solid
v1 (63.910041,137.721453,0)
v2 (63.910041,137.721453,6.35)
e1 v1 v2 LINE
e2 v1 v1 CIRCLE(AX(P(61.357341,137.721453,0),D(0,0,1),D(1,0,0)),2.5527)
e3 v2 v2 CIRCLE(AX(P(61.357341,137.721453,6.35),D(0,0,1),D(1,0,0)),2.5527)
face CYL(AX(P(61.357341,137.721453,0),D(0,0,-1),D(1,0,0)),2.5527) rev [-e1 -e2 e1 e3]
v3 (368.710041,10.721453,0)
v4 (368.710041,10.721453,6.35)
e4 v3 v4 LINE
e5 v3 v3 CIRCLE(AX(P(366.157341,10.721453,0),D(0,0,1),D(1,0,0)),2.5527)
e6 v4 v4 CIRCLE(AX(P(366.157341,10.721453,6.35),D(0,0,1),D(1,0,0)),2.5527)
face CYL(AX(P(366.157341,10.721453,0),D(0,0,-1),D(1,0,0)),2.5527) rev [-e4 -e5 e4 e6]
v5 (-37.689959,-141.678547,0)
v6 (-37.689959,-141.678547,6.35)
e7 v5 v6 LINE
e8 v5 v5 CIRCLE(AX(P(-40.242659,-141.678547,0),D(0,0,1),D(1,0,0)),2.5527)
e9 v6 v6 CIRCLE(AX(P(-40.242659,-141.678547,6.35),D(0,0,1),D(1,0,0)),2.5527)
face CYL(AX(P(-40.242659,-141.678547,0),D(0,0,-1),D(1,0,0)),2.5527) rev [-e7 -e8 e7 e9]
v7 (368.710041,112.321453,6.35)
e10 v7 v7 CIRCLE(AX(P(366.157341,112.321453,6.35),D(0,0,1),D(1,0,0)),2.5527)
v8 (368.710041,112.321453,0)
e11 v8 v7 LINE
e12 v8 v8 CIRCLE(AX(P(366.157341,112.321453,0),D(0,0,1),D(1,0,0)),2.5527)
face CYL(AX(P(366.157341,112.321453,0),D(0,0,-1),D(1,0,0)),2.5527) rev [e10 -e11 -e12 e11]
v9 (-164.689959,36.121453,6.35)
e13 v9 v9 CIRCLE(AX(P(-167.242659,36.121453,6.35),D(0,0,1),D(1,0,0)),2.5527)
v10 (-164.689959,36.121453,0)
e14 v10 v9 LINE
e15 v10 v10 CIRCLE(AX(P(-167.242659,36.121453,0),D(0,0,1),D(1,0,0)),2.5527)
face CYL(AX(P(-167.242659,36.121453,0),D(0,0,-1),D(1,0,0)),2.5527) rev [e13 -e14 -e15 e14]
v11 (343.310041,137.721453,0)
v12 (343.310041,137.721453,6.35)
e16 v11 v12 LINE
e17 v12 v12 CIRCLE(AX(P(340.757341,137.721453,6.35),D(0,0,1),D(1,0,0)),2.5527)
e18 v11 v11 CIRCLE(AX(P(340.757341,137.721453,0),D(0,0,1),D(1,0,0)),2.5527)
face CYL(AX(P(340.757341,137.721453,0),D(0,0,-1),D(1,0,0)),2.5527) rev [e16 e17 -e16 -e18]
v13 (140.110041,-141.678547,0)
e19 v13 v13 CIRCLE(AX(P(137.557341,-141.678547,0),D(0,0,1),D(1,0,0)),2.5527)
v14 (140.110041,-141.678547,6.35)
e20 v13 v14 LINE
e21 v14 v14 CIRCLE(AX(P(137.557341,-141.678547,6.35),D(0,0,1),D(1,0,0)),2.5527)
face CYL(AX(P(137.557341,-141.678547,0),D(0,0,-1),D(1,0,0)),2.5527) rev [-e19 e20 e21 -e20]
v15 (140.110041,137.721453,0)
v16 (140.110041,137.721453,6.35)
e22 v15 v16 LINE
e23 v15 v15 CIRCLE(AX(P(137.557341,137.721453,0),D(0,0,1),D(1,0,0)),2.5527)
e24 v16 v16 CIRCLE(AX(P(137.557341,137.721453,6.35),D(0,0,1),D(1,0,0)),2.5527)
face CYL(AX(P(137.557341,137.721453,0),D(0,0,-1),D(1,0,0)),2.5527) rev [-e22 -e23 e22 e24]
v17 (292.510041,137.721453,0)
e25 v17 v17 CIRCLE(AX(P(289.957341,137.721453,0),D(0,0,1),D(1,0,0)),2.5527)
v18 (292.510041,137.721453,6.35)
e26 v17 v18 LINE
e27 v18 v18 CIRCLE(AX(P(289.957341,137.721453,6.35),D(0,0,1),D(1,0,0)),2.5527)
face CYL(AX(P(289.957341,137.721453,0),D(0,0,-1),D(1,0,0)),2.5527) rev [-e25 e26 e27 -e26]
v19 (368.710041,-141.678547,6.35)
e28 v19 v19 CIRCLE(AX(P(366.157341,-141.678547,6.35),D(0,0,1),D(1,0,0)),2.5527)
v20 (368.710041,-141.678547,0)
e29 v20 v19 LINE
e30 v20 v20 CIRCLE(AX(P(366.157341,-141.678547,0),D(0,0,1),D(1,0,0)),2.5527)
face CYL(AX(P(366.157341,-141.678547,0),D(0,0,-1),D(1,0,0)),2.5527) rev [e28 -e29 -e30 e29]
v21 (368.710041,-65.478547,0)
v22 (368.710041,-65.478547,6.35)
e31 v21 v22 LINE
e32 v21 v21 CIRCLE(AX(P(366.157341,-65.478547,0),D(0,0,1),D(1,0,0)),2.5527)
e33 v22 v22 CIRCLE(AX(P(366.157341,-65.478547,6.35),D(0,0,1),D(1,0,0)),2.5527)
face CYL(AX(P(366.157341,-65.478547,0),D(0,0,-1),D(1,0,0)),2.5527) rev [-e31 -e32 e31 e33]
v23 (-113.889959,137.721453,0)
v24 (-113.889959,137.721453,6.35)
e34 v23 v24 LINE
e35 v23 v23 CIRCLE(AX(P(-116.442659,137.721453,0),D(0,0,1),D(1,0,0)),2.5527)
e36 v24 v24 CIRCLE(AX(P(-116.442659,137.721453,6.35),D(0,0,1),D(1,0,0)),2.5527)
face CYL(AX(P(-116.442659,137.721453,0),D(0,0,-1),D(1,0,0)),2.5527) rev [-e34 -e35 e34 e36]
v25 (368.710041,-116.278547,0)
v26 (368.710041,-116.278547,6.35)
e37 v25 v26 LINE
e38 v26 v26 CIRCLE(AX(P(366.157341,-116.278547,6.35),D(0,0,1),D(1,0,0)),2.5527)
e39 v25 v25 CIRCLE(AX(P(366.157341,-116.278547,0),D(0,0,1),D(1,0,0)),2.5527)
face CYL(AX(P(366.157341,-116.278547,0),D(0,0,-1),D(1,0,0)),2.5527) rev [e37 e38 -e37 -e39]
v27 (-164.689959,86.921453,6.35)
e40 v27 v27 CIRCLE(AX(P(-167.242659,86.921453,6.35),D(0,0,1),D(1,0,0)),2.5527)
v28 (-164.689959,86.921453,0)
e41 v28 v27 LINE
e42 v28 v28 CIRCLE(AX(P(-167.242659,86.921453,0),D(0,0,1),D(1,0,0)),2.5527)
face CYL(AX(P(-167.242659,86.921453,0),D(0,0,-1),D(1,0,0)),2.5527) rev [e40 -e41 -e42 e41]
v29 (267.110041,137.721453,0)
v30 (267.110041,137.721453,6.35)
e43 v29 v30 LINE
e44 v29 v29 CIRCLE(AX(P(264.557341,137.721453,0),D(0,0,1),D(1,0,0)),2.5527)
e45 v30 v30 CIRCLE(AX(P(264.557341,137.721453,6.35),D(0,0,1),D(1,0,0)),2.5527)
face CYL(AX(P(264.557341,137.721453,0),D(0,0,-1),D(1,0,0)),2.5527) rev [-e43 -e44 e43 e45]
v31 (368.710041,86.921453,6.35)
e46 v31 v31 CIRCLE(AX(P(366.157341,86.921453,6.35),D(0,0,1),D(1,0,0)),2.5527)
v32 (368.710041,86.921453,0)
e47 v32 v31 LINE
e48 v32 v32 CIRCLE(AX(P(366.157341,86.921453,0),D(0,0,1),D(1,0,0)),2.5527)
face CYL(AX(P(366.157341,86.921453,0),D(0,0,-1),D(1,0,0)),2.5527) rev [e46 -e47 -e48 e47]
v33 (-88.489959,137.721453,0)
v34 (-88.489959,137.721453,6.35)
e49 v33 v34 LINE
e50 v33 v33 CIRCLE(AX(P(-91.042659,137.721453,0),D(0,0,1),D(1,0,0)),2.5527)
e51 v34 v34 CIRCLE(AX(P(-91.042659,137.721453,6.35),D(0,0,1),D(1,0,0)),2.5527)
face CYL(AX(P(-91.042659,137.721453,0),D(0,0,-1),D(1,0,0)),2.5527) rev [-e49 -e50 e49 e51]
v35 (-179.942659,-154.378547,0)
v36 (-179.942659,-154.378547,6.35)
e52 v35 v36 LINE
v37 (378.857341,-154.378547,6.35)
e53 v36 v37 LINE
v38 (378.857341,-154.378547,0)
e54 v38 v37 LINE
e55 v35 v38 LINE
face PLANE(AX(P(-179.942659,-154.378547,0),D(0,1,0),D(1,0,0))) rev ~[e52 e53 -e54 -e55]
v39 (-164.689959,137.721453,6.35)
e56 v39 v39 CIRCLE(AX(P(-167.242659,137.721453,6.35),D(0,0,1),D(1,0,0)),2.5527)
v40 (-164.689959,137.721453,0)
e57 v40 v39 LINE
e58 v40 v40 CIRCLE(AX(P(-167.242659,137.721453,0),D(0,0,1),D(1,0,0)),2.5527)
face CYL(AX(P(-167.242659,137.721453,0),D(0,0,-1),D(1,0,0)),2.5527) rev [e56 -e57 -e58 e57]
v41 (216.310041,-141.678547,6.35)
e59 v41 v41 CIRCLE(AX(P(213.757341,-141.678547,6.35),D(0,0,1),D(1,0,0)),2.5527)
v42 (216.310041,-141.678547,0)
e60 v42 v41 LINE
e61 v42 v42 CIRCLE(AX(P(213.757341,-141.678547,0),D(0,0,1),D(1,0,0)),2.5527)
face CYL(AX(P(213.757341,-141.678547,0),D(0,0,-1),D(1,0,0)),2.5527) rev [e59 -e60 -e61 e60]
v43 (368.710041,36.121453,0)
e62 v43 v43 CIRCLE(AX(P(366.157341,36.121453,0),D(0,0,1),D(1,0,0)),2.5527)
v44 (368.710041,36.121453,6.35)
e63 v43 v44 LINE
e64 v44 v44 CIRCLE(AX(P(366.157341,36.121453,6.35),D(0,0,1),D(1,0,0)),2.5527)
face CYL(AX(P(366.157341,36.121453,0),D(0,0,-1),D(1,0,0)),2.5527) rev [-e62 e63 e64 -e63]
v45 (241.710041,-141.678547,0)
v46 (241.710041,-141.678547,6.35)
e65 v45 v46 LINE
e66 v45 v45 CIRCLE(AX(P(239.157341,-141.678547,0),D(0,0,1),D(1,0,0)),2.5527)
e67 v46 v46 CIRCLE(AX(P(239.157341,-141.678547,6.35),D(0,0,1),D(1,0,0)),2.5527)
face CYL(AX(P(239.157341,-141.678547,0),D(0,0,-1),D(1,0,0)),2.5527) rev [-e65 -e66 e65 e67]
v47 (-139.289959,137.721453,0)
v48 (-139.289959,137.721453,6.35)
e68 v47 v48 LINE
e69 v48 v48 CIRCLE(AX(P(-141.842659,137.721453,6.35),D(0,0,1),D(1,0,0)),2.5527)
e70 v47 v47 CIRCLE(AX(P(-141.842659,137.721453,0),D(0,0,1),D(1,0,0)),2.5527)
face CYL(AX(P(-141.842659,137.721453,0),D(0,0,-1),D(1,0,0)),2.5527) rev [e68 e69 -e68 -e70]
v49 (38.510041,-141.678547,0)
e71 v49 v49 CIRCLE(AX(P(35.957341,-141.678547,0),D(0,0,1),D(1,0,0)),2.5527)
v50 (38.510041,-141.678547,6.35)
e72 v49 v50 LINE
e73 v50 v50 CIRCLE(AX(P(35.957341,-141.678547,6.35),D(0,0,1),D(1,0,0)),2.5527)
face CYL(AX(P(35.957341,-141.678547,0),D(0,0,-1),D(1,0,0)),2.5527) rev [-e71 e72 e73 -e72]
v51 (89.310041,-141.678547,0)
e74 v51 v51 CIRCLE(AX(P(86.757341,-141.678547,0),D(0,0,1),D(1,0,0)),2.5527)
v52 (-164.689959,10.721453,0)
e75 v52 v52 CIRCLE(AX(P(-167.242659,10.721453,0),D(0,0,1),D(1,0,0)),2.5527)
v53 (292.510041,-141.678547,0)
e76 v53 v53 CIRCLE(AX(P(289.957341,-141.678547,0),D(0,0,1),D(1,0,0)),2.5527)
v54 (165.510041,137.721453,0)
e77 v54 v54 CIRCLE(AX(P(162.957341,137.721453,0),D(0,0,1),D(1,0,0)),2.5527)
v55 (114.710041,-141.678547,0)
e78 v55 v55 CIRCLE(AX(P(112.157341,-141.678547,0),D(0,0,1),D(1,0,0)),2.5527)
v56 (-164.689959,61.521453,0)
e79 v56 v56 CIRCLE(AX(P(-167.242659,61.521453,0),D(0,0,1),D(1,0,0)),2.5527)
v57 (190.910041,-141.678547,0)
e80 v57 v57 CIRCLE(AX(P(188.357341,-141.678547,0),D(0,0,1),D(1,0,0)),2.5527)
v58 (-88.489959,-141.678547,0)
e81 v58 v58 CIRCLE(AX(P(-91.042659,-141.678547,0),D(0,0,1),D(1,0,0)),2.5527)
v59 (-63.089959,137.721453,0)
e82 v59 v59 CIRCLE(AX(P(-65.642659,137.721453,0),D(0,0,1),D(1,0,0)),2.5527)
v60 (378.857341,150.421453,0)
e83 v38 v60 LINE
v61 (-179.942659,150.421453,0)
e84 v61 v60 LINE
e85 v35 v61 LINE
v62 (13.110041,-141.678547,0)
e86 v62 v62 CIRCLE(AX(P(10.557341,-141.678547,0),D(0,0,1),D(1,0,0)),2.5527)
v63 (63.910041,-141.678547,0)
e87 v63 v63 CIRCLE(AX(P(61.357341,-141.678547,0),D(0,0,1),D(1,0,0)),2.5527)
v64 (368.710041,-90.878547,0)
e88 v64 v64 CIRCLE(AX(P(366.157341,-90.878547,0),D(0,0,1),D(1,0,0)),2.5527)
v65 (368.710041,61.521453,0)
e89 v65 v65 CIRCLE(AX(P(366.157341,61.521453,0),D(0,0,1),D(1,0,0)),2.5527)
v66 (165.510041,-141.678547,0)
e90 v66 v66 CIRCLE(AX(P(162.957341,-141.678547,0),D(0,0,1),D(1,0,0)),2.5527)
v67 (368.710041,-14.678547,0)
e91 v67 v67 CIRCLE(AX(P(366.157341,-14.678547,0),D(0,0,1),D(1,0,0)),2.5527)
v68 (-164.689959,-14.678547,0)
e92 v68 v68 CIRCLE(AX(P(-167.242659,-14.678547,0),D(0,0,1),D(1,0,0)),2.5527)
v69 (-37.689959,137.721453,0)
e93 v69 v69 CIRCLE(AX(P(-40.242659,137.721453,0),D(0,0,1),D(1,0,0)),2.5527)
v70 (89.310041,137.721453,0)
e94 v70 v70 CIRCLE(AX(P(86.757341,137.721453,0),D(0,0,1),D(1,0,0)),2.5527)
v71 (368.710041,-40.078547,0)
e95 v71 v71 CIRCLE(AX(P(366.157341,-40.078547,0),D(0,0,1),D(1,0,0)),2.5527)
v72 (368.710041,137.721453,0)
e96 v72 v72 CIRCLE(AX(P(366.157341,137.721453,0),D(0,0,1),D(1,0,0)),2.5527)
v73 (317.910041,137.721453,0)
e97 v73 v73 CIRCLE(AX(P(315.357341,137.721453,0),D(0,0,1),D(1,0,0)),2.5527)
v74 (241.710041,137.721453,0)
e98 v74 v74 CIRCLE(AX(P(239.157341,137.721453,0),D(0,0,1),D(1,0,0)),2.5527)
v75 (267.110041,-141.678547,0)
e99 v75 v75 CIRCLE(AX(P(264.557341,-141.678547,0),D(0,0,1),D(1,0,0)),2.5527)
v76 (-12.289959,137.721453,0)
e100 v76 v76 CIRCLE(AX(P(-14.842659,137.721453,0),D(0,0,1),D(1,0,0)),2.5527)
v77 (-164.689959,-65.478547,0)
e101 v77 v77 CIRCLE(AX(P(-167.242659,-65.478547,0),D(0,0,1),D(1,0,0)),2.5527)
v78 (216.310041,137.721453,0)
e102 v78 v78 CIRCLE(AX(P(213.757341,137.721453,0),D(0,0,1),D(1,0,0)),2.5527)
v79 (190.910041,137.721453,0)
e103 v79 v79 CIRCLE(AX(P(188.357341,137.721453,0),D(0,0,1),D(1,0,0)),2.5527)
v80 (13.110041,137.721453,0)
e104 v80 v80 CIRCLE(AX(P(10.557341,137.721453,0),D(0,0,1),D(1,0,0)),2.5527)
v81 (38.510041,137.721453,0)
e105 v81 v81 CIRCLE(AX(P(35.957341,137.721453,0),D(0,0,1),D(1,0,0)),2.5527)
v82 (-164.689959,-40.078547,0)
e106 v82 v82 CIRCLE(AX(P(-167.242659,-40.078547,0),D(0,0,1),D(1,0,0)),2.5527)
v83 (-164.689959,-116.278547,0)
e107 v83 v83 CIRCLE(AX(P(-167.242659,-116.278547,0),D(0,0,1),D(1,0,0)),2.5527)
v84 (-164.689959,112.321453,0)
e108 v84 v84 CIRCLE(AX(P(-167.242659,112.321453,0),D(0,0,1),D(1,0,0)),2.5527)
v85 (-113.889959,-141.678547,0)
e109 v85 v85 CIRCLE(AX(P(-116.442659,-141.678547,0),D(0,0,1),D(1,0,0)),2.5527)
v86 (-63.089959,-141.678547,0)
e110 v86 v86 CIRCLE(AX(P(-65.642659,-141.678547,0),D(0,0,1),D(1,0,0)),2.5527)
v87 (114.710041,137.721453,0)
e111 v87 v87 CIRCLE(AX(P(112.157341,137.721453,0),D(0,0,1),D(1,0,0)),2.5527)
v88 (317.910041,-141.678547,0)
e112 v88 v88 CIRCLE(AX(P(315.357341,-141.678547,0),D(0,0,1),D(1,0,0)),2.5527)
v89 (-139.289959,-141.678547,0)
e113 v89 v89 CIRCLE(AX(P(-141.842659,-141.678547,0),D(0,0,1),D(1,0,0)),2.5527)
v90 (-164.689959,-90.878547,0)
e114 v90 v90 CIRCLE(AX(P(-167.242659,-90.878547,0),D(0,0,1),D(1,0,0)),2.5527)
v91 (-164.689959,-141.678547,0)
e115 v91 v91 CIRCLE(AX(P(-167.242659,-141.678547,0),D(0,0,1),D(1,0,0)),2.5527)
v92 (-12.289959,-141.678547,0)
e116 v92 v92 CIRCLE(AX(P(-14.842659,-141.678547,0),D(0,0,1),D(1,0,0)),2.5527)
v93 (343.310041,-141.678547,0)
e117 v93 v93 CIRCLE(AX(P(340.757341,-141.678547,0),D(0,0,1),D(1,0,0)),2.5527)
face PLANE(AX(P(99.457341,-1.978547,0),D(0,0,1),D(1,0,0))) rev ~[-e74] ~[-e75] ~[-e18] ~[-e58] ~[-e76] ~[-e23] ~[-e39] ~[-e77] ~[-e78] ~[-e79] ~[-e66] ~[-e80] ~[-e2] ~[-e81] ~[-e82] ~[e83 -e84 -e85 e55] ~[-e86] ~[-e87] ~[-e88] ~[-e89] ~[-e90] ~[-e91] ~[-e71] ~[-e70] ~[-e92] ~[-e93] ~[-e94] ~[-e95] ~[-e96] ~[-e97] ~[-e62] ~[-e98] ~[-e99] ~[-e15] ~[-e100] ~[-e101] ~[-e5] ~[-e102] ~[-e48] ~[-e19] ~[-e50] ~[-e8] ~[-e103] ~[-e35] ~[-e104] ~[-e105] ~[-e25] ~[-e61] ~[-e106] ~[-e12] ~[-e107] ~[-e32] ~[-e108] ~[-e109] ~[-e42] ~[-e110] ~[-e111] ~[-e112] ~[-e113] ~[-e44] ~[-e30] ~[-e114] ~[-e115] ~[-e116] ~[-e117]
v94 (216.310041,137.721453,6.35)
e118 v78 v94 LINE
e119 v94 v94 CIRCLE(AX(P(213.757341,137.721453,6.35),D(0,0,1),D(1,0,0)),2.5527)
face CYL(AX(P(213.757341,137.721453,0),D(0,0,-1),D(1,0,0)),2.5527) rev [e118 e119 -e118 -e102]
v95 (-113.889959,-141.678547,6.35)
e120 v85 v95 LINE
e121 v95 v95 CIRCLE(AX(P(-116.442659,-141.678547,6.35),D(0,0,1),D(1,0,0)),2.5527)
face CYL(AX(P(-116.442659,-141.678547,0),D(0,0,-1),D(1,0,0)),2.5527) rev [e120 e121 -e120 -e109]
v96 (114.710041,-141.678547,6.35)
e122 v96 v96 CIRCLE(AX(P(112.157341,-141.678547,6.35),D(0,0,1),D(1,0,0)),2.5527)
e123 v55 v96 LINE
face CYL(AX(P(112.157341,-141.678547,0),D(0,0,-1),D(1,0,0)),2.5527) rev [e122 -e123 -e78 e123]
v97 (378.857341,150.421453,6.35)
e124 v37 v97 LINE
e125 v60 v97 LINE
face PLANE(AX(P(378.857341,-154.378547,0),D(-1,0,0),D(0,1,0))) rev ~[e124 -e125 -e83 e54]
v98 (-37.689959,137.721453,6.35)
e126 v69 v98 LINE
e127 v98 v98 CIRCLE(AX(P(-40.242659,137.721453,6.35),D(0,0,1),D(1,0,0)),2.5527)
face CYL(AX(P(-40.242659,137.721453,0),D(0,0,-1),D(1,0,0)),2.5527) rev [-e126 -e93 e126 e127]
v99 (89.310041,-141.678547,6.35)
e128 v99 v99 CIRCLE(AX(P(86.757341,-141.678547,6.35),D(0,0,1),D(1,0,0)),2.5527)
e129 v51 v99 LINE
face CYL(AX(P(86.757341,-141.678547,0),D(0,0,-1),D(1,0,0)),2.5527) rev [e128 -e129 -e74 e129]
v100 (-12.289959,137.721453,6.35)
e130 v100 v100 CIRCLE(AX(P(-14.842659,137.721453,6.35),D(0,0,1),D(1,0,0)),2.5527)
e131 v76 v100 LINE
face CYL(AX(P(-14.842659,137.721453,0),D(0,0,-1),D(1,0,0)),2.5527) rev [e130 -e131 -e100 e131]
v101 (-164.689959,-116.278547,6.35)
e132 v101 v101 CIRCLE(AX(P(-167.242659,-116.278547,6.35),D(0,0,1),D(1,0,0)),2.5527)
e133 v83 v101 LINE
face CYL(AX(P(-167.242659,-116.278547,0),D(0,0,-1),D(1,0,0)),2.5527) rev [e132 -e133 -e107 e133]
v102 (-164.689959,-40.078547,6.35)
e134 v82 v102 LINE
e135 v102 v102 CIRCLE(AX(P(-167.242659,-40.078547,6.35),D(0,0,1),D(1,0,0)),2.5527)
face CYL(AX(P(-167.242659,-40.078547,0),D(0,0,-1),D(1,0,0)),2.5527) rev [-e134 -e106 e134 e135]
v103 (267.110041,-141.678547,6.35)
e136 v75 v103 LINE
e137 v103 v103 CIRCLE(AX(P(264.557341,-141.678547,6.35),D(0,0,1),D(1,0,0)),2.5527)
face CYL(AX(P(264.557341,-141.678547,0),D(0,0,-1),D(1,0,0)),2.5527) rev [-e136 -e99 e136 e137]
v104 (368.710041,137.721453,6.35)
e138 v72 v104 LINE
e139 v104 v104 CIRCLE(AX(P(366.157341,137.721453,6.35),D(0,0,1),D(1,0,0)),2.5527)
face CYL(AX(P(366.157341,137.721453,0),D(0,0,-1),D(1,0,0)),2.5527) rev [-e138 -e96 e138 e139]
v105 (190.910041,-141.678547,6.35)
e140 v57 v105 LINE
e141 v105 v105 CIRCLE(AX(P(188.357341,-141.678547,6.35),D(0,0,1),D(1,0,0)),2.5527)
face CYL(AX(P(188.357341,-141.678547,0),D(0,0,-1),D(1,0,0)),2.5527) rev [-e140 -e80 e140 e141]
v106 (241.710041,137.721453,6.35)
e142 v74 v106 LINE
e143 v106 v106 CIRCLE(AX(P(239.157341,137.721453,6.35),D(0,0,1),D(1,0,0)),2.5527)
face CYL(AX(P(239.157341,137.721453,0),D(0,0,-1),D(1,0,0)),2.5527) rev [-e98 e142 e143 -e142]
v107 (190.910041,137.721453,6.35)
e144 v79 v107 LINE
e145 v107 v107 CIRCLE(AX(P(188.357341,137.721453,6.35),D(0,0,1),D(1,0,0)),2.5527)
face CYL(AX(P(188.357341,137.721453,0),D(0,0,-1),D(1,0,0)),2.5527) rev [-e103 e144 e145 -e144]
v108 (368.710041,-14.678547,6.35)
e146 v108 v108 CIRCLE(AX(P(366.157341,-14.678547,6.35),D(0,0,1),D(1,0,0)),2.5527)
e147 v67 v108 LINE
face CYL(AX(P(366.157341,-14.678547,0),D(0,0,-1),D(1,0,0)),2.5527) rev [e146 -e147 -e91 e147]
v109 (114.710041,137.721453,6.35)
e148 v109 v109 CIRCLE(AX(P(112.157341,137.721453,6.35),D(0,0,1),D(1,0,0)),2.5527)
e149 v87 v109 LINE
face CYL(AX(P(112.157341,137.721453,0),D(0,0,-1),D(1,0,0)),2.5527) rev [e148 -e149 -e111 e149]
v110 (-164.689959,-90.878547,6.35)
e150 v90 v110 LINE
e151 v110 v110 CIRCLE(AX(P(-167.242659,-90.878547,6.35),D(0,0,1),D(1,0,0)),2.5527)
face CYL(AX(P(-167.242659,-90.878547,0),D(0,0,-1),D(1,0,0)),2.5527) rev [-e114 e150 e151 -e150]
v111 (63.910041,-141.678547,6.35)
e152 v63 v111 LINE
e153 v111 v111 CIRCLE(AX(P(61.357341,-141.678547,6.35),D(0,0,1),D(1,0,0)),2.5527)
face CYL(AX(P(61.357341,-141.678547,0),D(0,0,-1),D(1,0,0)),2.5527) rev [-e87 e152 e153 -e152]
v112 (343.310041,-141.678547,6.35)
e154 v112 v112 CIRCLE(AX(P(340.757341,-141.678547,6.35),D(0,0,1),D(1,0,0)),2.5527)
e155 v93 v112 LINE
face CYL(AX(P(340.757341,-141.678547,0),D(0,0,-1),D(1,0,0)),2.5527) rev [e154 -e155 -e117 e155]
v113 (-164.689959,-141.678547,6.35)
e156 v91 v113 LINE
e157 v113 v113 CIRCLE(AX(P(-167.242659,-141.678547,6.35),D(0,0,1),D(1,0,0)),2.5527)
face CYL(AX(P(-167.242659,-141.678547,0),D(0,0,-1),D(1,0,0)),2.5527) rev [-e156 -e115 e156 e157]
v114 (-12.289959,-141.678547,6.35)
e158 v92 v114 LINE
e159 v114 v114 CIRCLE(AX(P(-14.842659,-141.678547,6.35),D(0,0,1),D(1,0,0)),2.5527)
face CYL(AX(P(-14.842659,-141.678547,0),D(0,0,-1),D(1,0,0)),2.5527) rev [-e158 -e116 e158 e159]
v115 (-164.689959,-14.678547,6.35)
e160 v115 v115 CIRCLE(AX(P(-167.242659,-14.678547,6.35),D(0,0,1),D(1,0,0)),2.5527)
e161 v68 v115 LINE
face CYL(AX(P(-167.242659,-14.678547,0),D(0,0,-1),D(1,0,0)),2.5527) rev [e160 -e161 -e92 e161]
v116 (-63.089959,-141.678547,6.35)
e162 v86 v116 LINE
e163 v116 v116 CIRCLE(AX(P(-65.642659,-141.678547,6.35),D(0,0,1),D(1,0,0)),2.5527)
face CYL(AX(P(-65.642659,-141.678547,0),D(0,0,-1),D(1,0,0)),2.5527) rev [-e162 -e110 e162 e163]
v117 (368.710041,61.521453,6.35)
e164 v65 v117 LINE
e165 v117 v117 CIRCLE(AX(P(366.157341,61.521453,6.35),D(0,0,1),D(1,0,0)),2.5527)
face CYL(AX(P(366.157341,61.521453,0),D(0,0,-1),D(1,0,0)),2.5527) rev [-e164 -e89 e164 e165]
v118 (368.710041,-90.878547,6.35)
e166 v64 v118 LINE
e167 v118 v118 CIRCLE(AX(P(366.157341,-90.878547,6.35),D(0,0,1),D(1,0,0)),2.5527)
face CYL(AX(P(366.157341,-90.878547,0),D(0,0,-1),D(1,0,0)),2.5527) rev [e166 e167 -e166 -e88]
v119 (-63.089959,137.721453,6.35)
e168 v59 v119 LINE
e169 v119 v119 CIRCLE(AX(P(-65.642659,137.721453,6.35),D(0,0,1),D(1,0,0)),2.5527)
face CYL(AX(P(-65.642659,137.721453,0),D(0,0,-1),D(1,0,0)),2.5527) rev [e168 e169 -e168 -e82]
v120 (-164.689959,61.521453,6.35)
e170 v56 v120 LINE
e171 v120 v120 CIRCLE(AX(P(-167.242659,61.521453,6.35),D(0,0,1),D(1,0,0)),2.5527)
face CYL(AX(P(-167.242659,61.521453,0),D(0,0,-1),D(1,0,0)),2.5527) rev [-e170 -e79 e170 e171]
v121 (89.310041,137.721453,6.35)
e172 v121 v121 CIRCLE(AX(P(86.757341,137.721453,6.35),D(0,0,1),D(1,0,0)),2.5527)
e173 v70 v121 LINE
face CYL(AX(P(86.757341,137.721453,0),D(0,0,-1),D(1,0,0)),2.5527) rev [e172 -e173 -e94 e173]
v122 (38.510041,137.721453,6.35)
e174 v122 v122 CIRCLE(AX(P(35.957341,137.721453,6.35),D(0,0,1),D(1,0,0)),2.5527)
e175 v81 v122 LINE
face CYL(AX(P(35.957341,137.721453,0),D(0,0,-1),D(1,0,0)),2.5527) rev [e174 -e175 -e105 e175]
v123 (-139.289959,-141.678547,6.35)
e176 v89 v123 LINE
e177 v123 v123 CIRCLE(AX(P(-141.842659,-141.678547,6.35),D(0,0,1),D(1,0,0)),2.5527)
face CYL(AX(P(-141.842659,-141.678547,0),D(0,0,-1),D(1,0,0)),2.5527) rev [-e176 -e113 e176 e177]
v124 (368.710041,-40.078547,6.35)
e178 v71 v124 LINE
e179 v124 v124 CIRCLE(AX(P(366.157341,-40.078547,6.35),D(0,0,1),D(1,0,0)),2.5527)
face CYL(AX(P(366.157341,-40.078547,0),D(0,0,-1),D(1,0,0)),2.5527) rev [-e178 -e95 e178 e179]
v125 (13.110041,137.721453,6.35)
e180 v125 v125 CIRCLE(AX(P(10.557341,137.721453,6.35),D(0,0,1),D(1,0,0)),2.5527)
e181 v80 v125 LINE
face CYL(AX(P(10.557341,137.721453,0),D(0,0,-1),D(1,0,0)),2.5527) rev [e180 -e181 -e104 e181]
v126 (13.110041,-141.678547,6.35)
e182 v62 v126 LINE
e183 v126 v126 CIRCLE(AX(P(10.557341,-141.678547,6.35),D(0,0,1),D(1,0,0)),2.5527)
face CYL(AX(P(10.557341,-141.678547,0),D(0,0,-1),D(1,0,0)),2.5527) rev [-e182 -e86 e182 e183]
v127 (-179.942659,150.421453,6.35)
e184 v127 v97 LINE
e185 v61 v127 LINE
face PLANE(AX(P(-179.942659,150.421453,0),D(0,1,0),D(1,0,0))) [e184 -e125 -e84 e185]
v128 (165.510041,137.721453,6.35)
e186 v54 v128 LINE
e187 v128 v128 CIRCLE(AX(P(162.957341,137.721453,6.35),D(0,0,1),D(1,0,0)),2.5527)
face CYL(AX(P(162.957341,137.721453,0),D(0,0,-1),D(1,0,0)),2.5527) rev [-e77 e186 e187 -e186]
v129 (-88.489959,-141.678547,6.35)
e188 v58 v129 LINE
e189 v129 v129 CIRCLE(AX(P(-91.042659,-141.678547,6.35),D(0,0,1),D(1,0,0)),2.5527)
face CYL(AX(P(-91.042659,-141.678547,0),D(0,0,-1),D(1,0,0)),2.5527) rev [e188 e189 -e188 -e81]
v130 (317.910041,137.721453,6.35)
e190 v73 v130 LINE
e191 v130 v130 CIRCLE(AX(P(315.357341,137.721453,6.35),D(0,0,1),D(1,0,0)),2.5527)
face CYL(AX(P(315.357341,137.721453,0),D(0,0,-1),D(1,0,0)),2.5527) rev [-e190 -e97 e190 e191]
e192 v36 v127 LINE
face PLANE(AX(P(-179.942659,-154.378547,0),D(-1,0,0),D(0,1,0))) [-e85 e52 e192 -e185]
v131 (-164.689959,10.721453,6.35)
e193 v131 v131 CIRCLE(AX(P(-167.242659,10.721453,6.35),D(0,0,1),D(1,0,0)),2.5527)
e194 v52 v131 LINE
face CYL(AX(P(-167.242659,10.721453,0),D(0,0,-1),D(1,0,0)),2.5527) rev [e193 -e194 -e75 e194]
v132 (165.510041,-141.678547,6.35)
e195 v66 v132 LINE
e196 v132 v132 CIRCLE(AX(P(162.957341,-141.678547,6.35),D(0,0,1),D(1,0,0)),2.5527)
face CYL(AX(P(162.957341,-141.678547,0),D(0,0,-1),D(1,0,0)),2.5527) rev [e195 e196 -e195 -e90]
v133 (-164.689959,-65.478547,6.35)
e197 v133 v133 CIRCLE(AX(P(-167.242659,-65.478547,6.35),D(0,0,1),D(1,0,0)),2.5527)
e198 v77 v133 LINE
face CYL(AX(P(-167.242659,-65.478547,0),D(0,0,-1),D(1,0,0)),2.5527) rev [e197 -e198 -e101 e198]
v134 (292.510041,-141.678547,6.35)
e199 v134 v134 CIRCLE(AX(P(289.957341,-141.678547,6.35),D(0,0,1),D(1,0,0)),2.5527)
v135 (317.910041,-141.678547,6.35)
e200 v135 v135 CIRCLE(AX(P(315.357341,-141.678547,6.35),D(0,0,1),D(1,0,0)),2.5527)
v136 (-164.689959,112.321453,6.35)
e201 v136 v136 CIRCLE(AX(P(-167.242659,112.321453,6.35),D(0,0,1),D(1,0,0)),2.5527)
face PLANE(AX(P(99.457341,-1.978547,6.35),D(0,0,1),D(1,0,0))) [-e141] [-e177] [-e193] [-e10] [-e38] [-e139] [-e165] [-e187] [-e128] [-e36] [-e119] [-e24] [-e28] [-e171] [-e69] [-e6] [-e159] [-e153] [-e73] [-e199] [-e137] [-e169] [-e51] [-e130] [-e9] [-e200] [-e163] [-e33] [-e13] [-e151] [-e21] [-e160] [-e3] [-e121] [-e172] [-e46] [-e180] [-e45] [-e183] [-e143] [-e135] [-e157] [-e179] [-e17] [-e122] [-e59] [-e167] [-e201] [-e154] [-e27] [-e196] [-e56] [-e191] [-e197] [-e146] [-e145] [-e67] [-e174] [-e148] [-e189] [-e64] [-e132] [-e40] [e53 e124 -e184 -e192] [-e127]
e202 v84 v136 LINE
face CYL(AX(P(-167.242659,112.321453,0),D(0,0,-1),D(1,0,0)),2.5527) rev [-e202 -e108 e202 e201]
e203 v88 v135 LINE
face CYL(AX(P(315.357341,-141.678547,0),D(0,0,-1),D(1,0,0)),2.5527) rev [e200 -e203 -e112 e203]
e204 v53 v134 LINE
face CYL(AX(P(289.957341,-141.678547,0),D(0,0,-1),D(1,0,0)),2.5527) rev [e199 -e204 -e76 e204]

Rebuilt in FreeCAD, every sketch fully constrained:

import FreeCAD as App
import Part
import Sketcher

V = App.Vector
Q = App.Units.Quantity

doc = App.newDocument("Part")
body = doc.addObject("PartDesign::Body", "Body")

# Sketch on XY plane
sketch1 = body.newObject("Sketcher::SketchObject", "Sketch")
sketch1.AttachmentSupport = (doc.getObject("XY_Plane"), [""])
sketch1.MapMode = "FlatFace"
sketch1.addGeometry([
    Part.LineSegment(V(-179.942659, 150.421453, 0), V(-179.942659, -154.378547, 0)),  # 0
    Part.LineSegment(V(-179.942659, -154.378547, 0), V(378.857341, -154.378547, 0)),  # 1
    Part.LineSegment(V(378.857341, -154.378547, 0), V(378.857341, 150.421453, 0)),  # 2
    Part.LineSegment(V(378.857341, 150.421453, 0), V(-179.942659, 150.421453, 0)),  # 3
    Part.Circle(V(-167.242659, -141.678547, 0), V(0, 0, 1), 2.5527),  # 4
    Part.Circle(V(-141.842659, -141.678547, 0), V(0, 0, 1), 2.5527),  # 5
    Part.Circle(V(-116.442659, -141.678547, 0), V(0, 0, 1), 2.5527),  # 6
    Part.Circle(V(-167.242659, -116.278547, 0), V(0, 0, 1), 2.5527),  # 7
    Part.Circle(V(-91.042659, -141.678547, 0), V(0, 0, 1), 2.5527),  # 8
    Part.Circle(V(-65.642659, -141.678547, 0), V(0, 0, 1), 2.5527),  # 9
    Part.Circle(V(-40.242659, -141.678547, 0), V(0, 0, 1), 2.5527),  # 10
    Part.Circle(V(-167.242659, -90.878547, 0), V(0, 0, 1), 2.5527),  # 11
    Part.Circle(V(-14.842659, -141.678547, 0), V(0, 0, 1), 2.5527),  # 12
    Part.Circle(V(10.557341, -141.678547, 0), V(0, 0, 1), 2.5527),  # 13
    Part.Circle(V(35.957341, -141.678547, 0), V(0, 0, 1), 2.5527),  # 14
    Part.Circle(V(61.357341, -141.678547, 0), V(0, 0, 1), 2.5527),  # 15
    Part.Circle(V(86.757341, -141.678547, 0), V(0, 0, 1), 2.5527),  # 16
    Part.Circle(V(-167.242659, -65.478547, 0), V(0, 0, 1), 2.5527),  # 17
    Part.Circle(V(-167.242659, -40.078547, 0), V(0, 0, 1), 2.5527),  # 18
    Part.Circle(V(-167.242659, -14.678547, 0), V(0, 0, 1), 2.5527),  # 19
    Part.Circle(V(112.157341, -141.678547, 0), V(0, 0, 1), 2.5527),  # 20
    Part.Circle(V(137.557341, -141.678547, 0), V(0, 0, 1), 2.5527),  # 21
    Part.Circle(V(162.957341, -141.678547, 0), V(0, 0, 1), 2.5527),  # 22
    Part.Circle(V(188.357341, -141.678547, 0), V(0, 0, 1), 2.5527),  # 23
    Part.Circle(V(213.757341, -141.678547, 0), V(0, 0, 1), 2.5527),  # 24
    Part.Circle(V(239.157341, -141.678547, 0), V(0, 0, 1), 2.5527),  # 25
    Part.Circle(V(264.557341, -141.678547, 0), V(0, 0, 1), 2.5527),  # 26
    Part.Circle(V(289.957341, -141.678547, 0), V(0, 0, 1), 2.5527),  # 27
    Part.Circle(V(315.357341, -141.678547, 0), V(0, 0, 1), 2.5527),  # 28
    Part.Circle(V(340.757341, -141.678547, 0), V(0, 0, 1), 2.5527),  # 29
    Part.Circle(V(366.157341, -141.678547, 0), V(0, 0, 1), 2.5527),  # 30
    Part.Circle(V(366.157341, -116.278547, 0), V(0, 0, 1), 2.5527),  # 31
    Part.Circle(V(366.157341, -90.878547, 0), V(0, 0, 1), 2.5527),  # 32
    Part.Circle(V(366.157341, -65.478547, 0), V(0, 0, 1), 2.5527),  # 33
    Part.Circle(V(366.157341, -40.078547, 0), V(0, 0, 1), 2.5527),  # 34
    Part.Circle(V(366.157341, -14.678547, 0), V(0, 0, 1), 2.5527),  # 35
    Part.Circle(V(-167.242659, 10.721453, 0), V(0, 0, 1), 2.5527),  # 36
    Part.Circle(V(-167.242659, 36.121453, 0), V(0, 0, 1), 2.5527),  # 37
    Part.Circle(V(-167.242659, 61.521453, 0), V(0, 0, 1), 2.5527),  # 38
    Part.Circle(V(-167.242659, 86.921453, 0), V(0, 0, 1), 2.5527),  # 39
    Part.Circle(V(-167.242659, 112.321453, 0), V(0, 0, 1), 2.5527),  # 40
    Part.Circle(V(-167.242659, 137.721453, 0), V(0, 0, 1), 2.5527),  # 41
    Part.Circle(V(-141.842659, 137.721453, 0), V(0, 0, 1), 2.5527),  # 42
    Part.Circle(V(-116.442659, 137.721453, 0), V(0, 0, 1), 2.5527),  # 43
    Part.Circle(V(-91.042659, 137.721453, 0), V(0, 0, 1), 2.5527),  # 44
    Part.Circle(V(-65.642659, 137.721453, 0), V(0, 0, 1), 2.5527),  # 45
    Part.Circle(V(-40.242659, 137.721453, 0), V(0, 0, 1), 2.5527),  # 46
    Part.Circle(V(-14.842659, 137.721453, 0), V(0, 0, 1), 2.5527),  # 47
    Part.Circle(V(10.557341, 137.721453, 0), V(0, 0, 1), 2.5527),  # 48
    Part.Circle(V(35.957341, 137.721453, 0), V(0, 0, 1), 2.5527),  # 49
    Part.Circle(V(61.357341, 137.721453, 0), V(0, 0, 1), 2.5527),  # 50
    Part.Circle(V(86.757341, 137.721453, 0), V(0, 0, 1), 2.5527),  # 51
    Part.Circle(V(366.157341, 10.721453, 0), V(0, 0, 1), 2.5527),  # 52
    Part.Circle(V(366.157341, 36.121453, 0), V(0, 0, 1), 2.5527),  # 53
    Part.Circle(V(366.157341, 61.521453, 0), V(0, 0, 1), 2.5527),  # 54
    Part.Circle(V(112.157341, 137.721453, 0), V(0, 0, 1), 2.5527),  # 55
    Part.Circle(V(137.557341, 137.721453, 0), V(0, 0, 1), 2.5527),  # 56
    Part.Circle(V(162.957341, 137.721453, 0), V(0, 0, 1), 2.5527),  # 57
    Part.Circle(V(188.357341, 137.721453, 0), V(0, 0, 1), 2.5527),  # 58
    Part.Circle(V(213.757341, 137.721453, 0), V(0, 0, 1), 2.5527),  # 59
    Part.Circle(V(366.157341, 86.921453, 0), V(0, 0, 1), 2.5527),  # 60
    Part.Circle(V(239.157341, 137.721453, 0), V(0, 0, 1), 2.5527),  # 61
    Part.Circle(V(264.557341, 137.721453, 0), V(0, 0, 1), 2.5527),  # 62
    Part.Circle(V(289.957341, 137.721453, 0), V(0, 0, 1), 2.5527),  # 63
    Part.Circle(V(366.157341, 112.321453, 0), V(0, 0, 1), 2.5527),  # 64
    Part.Circle(V(315.357341, 137.721453, 0), V(0, 0, 1), 2.5527),  # 65
    Part.Circle(V(340.757341, 137.721453, 0), V(0, 0, 1), 2.5527),  # 66
    Part.Circle(V(366.157341, 137.721453, 0), V(0, 0, 1), 2.5527),  # 67
], False)
sketch1.addConstraint([
    Sketcher.Constraint("Coincident", 0, 2, 1, 1),
    Sketcher.Constraint("Coincident", 1, 2, 2, 1),
    Sketcher.Constraint("Coincident", 2, 2, 3, 1),
    Sketcher.Constraint("Coincident", 3, 2, 0, 1),
    Sketcher.Constraint("Vertical", 0),
    Sketcher.Constraint("Horizontal", 1),
    Sketcher.Constraint("Vertical", 2),
    Sketcher.Constraint("Horizontal", 3),
    Sketcher.Constraint("Equal", 4, 5),
    Sketcher.Constraint("Equal", 5, 6),
    Sketcher.Constraint("Equal", 6, 7),
    Sketcher.Constraint("Equal", 7, 8),
    Sketcher.Constraint("Equal", 8, 9),
    Sketcher.Constraint("Equal", 9, 10),
    Sketcher.Constraint("Equal", 10, 11),
    Sketcher.Constraint("Equal", 11, 12),
    Sketcher.Constraint("Equal", 12, 13),
    Sketcher.Constraint("Equal", 13, 14),
    Sketcher.Constraint("Equal", 14, 15),
    Sketcher.Constraint("Equal", 15, 16),
    Sketcher.Constraint("Equal", 16, 17),
    Sketcher.Constraint("Equal", 17, 18),
    Sketcher.Constraint("Equal", 18, 19),
    Sketcher.Constraint("Equal", 19, 20),
    Sketcher.Constraint("Equal", 20, 21),
    Sketcher.Constraint("Equal", 21, 22),
    Sketcher.Constraint("Equal", 22, 23),
    Sketcher.Constraint("Equal", 23, 24),
    Sketcher.Constraint("Equal", 24, 25),
    Sketcher.Constraint("Equal", 25, 26),
    Sketcher.Constraint("Equal", 26, 27),
    Sketcher.Constraint("Equal", 27, 28),
    Sketcher.Constraint("Equal", 28, 29),
    Sketcher.Constraint("Equal", 29, 30),
    Sketcher.Constraint("Equal", 30, 31),
    Sketcher.Constraint("Equal", 31, 32),
    Sketcher.Constraint("Equal", 32, 33),
    Sketcher.Constraint("Equal", 33, 34),
    Sketcher.Constraint("Equal", 34, 35),
    Sketcher.Constraint("Equal", 35, 36),
    Sketcher.Constraint("Equal", 36, 37),
    Sketcher.Constraint("Equal", 37, 38),
    Sketcher.Constraint("Equal", 38, 39),
    Sketcher.Constraint("Equal", 39, 40),
    Sketcher.Constraint("Equal", 40, 41),
    Sketcher.Constraint("Equal", 41, 42),
    Sketcher.Constraint("Equal", 42, 43),
    Sketcher.Constraint("Equal", 43, 44),
    Sketcher.Constraint("Equal", 44, 45),
    Sketcher.Constraint("Equal", 45, 46),
    Sketcher.Constraint("Equal", 46, 47),
    Sketcher.Constraint("Equal", 47, 48),
    Sketcher.Constraint("Equal", 48, 49),
    Sketcher.Constraint("Equal", 49, 50),
    Sketcher.Constraint("Equal", 50, 51),
    Sketcher.Constraint("Equal", 51, 52),
    Sketcher.Constraint("Equal", 52, 53),
    Sketcher.Constraint("Equal", 53, 54),
    Sketcher.Constraint("Equal", 54, 55),
    Sketcher.Constraint("Equal", 55, 56),
    Sketcher.Constraint("Equal", 56, 57),
    Sketcher.Constraint("Equal", 57, 58),
    Sketcher.Constraint("Equal", 58, 59),
    Sketcher.Constraint("Equal", 59, 60),
    Sketcher.Constraint("Equal", 60, 61),
    Sketcher.Constraint("Equal", 61, 62),
    Sketcher.Constraint("Equal", 62, 63),
    Sketcher.Constraint("Equal", 63, 64),
    Sketcher.Constraint("Equal", 64, 65),
    Sketcher.Constraint("Equal", 65, 66),
    Sketcher.Constraint("Equal", 66, 67),
    Sketcher.Constraint("Horizontal", 4, 3, 5, 3),
    Sketcher.Constraint("Horizontal", 5, 3, 6, 3),
    Sketcher.Constraint("Horizontal", 6, 3, 8, 3),
    Sketcher.Constraint("Horizontal", 8, 3, 9, 3),
    Sketcher.Constraint("Horizontal", 9, 3, 10, 3),
    Sketcher.Constraint("Horizontal", 10, 3, 12, 3),
    Sketcher.Constraint("Horizontal", 12, 3, 13, 3),
    Sketcher.Constraint("Horizontal", 13, 3, 14, 3),
    Sketcher.Constraint("Horizontal", 14, 3, 15, 3),
    Sketcher.Constraint("Horizontal", 15, 3, 16, 3),
    Sketcher.Constraint("Horizontal", 16, 3, 20, 3),
    Sketcher.Constraint("Horizontal", 20, 3, 21, 3),
    Sketcher.Constraint("Horizontal", 21, 3, 22, 3),
    Sketcher.Constraint("Horizontal", 22, 3, 23, 3),
    Sketcher.Constraint("Horizontal", 23, 3, 24, 3),
    Sketcher.Constraint("Horizontal", 24, 3, 25, 3),
    Sketcher.Constraint("Horizontal", 25, 3, 26, 3),
    Sketcher.Constraint("Horizontal", 26, 3, 27, 3),
    Sketcher.Constraint("Horizontal", 27, 3, 28, 3),
    Sketcher.Constraint("Horizontal", 28, 3, 29, 3),
    Sketcher.Constraint("Horizontal", 29, 3, 30, 3),
    Sketcher.Constraint("Horizontal", 7, 3, 31, 3),
    Sketcher.Constraint("Horizontal", 11, 3, 32, 3),
    Sketcher.Constraint("Horizontal", 17, 3, 33, 3),
    Sketcher.Constraint("Horizontal", 18, 3, 34, 3),
    Sketcher.Constraint("Horizontal", 19, 3, 35, 3),
    Sketcher.Constraint("Horizontal", 41, 3, 42, 3),
    Sketcher.Constraint("Horizontal", 42, 3, 43, 3),
    Sketcher.Constraint("Horizontal", 43, 3, 44, 3),
    Sketcher.Constraint("Horizontal", 44, 3, 45, 3),
    Sketcher.Constraint("Horizontal", 45, 3, 46, 3),
    Sketcher.Constraint("Horizontal", 46, 3, 47, 3),
    Sketcher.Constraint("Horizontal", 47, 3, 48, 3),
    Sketcher.Constraint("Horizontal", 48, 3, 49, 3),
    Sketcher.Constraint("Horizontal", 49, 3, 50, 3),
    Sketcher.Constraint("Horizontal", 50, 3, 51, 3),
    Sketcher.Constraint("Horizontal", 36, 3, 52, 3),
    Sketcher.Constraint("Horizontal", 37, 3, 53, 3),
    Sketcher.Constraint("Horizontal", 38, 3, 54, 3),
    Sketcher.Constraint("Horizontal", 51, 3, 55, 3),
    Sketcher.Constraint("Horizontal", 55, 3, 56, 3),
    Sketcher.Constraint("Horizontal", 56, 3, 57, 3),
    Sketcher.Constraint("Horizontal", 57, 3, 58, 3),
    Sketcher.Constraint("Horizontal", 58, 3, 59, 3),
    Sketcher.Constraint("Horizontal", 39, 3, 60, 3),
    Sketcher.Constraint("Horizontal", 59, 3, 61, 3),
    Sketcher.Constraint("Horizontal", 61, 3, 62, 3),
    Sketcher.Constraint("Horizontal", 62, 3, 63, 3),
    Sketcher.Constraint("Horizontal", 40, 3, 64, 3),
    Sketcher.Constraint("Horizontal", 63, 3, 65, 3),
    Sketcher.Constraint("Horizontal", 65, 3, 66, 3),
    Sketcher.Constraint("Horizontal", 66, 3, 67, 3),
    Sketcher.Constraint("Vertical", 4, 3, 7, 3),
    Sketcher.Constraint("Vertical", 7, 3, 11, 3),
    Sketcher.Constraint("Vertical", 11, 3, 17, 3),
    Sketcher.Constraint("Vertical", 17, 3, 18, 3),
    Sketcher.Constraint("Vertical", 18, 3, 19, 3),
    Sketcher.Constraint("Vertical", 30, 3, 31, 3),
    Sketcher.Constraint("Vertical", 31, 3, 32, 3),
    Sketcher.Constraint("Vertical", 32, 3, 33, 3),
    Sketcher.Constraint("Vertical", 33, 3, 34, 3),
    Sketcher.Constraint("Vertical", 34, 3, 35, 3),
    Sketcher.Constraint("Vertical", 19, 3, 36, 3),
    Sketcher.Constraint("Vertical", 36, 3, 37, 3),
    Sketcher.Constraint("Vertical", 37, 3, 38, 3),
    Sketcher.Constraint("Vertical", 38, 3, 39, 3),
    Sketcher.Constraint("Vertical", 39, 3, 40, 3),
    Sketcher.Constraint("Vertical", 40, 3, 41, 3),
    Sketcher.Constraint("Vertical", 5, 3, 42, 3),
    Sketcher.Constraint("Vertical", 6, 3, 43, 3),
    Sketcher.Constraint("Vertical", 8, 3, 44, 3),
    Sketcher.Constraint("Vertical", 9, 3, 45, 3),
    Sketcher.Constraint("Vertical", 10, 3, 46, 3),
    Sketcher.Constraint("Vertical", 12, 3, 47, 3),
    Sketcher.Constraint("Vertical", 13, 3, 48, 3),
    Sketcher.Constraint("Vertical", 14, 3, 49, 3),
    Sketcher.Constraint("Vertical", 15, 3, 50, 3),
    Sketcher.Constraint("Vertical", 16, 3, 51, 3),
    Sketcher.Constraint("Vertical", 35, 3, 52, 3),
    Sketcher.Constraint("Vertical", 52, 3, 53, 3),
    Sketcher.Constraint("Vertical", 53, 3, 54, 3),
    Sketcher.Constraint("Vertical", 20, 3, 55, 3),
    Sketcher.Constraint("Vertical", 21, 3, 56, 3),
    Sketcher.Constraint("Vertical", 22, 3, 57, 3),
    Sketcher.Constraint("Vertical", 23, 3, 58, 3),
    Sketcher.Constraint("Vertical", 24, 3, 59, 3),
    Sketcher.Constraint("Vertical", 54, 3, 60, 3),
    Sketcher.Constraint("Vertical", 25, 3, 61, 3),
    Sketcher.Constraint("Vertical", 26, 3, 62, 3),
    Sketcher.Constraint("Vertical", 27, 3, 63, 3),
    Sketcher.Constraint("Vertical", 60, 3, 64, 3),
    Sketcher.Constraint("Vertical", 28, 3, 65, 3),
    Sketcher.Constraint("Vertical", 29, 3, 66, 3),
    Sketcher.Constraint("Vertical", 64, 3, 67, 3),
    Sketcher.Constraint("DistanceX", 1, 1, 1, 2, Q("22 in")),
    Sketcher.Constraint("DistanceY", 0, 2, 0, 1, Q("12 in")),
    Sketcher.Constraint("Diameter", 4, Q("0.201 in")),
    Sketcher.Constraint("DistanceX", 4, 3, -1, 1, Q("167.242659 mm")),
    Sketcher.Constraint("DistanceX", 5, 3, -1, 1, Q("141.842659 mm")),
    Sketcher.Constraint("DistanceX", 6, 3, -1, 1, Q("116.442659 mm")),
    Sketcher.Constraint("DistanceX", 8, 3, -1, 1, Q("91.042659 mm")),
    Sketcher.Constraint("DistanceX", 9, 3, -1, 1, Q("65.642659 mm")),
    Sketcher.Constraint("DistanceX", 10, 3, -1, 1, Q("40.242659 mm")),
    Sketcher.Constraint("DistanceX", 12, 3, -1, 1, Q("14.842659 mm")),
    Sketcher.Constraint("DistanceX", -1, 1, 13, 3, Q("10.557341 mm")),
    Sketcher.Constraint("DistanceX", -1, 1, 14, 3, Q("35.957341 mm")),
    Sketcher.Constraint("DistanceX", -1, 1, 15, 3, Q("61.357341 mm")),
    Sketcher.Constraint("DistanceX", -1, 1, 16, 3, Q("86.757341 mm")),
    Sketcher.Constraint("DistanceX", -1, 1, 20, 3, Q("112.157341 mm")),
    Sketcher.Constraint("DistanceX", -1, 1, 21, 3, Q("137.557341 mm")),
    Sketcher.Constraint("DistanceX", -1, 1, 22, 3, Q("162.957341 mm")),
    Sketcher.Constraint("DistanceX", -1, 1, 23, 3, Q("188.357341 mm")),
    Sketcher.Constraint("DistanceX", -1, 1, 24, 3, Q("213.757341 mm")),
    Sketcher.Constraint("DistanceX", -1, 1, 25, 3, Q("239.157341 mm")),
    Sketcher.Constraint("DistanceX", -1, 1, 26, 3, Q("264.557341 mm")),
    Sketcher.Constraint("DistanceX", -1, 1, 27, 3, Q("289.957341 mm")),
    Sketcher.Constraint("DistanceX", -1, 1, 28, 3, Q("315.357341 mm")),
    Sketcher.Constraint("DistanceX", -1, 1, 29, 3, Q("340.757341 mm")),
    Sketcher.Constraint("DistanceX", -1, 1, 30, 3, Q("366.157341 mm")),
    Sketcher.Constraint("DistanceX", 0, 2, -1, 1, Q("179.942659 mm")),
    Sketcher.Constraint("DistanceY", 4, 3, -1, 1, Q("141.678547 mm")),
    Sketcher.Constraint("DistanceY", 7, 3, -1, 1, Q("116.278547 mm")),
    Sketcher.Constraint("DistanceY", 11, 3, -1, 1, Q("90.878547 mm")),
    Sketcher.Constraint("DistanceY", 17, 3, -1, 1, Q("65.478547 mm")),
    Sketcher.Constraint("DistanceY", 18, 3, -1, 1, Q("40.078547 mm")),
    Sketcher.Constraint("DistanceY", 19, 3, -1, 1, Q("14.678547 mm")),
    Sketcher.Constraint("DistanceY", -1, 1, 36, 3, Q("10.721453 mm")),
    Sketcher.Constraint("DistanceY", -1, 1, 37, 3, Q("36.121453 mm")),
    Sketcher.Constraint("DistanceY", -1, 1, 38, 3, Q("61.521453 mm")),
    Sketcher.Constraint("DistanceY", -1, 1, 39, 3, Q("86.921453 mm")),
    Sketcher.Constraint("DistanceY", -1, 1, 40, 3, Q("112.321453 mm")),
    Sketcher.Constraint("DistanceY", -1, 1, 41, 3, Q("137.721453 mm")),
    Sketcher.Constraint("DistanceY", 0, 2, -1, 1, Q("154.378547 mm")),
])
pad1 = body.newObject("PartDesign::Pad", "Pad")
pad1.Profile = sketch1
pad1.Length = Q("0.25 in")

doc.recompute()
